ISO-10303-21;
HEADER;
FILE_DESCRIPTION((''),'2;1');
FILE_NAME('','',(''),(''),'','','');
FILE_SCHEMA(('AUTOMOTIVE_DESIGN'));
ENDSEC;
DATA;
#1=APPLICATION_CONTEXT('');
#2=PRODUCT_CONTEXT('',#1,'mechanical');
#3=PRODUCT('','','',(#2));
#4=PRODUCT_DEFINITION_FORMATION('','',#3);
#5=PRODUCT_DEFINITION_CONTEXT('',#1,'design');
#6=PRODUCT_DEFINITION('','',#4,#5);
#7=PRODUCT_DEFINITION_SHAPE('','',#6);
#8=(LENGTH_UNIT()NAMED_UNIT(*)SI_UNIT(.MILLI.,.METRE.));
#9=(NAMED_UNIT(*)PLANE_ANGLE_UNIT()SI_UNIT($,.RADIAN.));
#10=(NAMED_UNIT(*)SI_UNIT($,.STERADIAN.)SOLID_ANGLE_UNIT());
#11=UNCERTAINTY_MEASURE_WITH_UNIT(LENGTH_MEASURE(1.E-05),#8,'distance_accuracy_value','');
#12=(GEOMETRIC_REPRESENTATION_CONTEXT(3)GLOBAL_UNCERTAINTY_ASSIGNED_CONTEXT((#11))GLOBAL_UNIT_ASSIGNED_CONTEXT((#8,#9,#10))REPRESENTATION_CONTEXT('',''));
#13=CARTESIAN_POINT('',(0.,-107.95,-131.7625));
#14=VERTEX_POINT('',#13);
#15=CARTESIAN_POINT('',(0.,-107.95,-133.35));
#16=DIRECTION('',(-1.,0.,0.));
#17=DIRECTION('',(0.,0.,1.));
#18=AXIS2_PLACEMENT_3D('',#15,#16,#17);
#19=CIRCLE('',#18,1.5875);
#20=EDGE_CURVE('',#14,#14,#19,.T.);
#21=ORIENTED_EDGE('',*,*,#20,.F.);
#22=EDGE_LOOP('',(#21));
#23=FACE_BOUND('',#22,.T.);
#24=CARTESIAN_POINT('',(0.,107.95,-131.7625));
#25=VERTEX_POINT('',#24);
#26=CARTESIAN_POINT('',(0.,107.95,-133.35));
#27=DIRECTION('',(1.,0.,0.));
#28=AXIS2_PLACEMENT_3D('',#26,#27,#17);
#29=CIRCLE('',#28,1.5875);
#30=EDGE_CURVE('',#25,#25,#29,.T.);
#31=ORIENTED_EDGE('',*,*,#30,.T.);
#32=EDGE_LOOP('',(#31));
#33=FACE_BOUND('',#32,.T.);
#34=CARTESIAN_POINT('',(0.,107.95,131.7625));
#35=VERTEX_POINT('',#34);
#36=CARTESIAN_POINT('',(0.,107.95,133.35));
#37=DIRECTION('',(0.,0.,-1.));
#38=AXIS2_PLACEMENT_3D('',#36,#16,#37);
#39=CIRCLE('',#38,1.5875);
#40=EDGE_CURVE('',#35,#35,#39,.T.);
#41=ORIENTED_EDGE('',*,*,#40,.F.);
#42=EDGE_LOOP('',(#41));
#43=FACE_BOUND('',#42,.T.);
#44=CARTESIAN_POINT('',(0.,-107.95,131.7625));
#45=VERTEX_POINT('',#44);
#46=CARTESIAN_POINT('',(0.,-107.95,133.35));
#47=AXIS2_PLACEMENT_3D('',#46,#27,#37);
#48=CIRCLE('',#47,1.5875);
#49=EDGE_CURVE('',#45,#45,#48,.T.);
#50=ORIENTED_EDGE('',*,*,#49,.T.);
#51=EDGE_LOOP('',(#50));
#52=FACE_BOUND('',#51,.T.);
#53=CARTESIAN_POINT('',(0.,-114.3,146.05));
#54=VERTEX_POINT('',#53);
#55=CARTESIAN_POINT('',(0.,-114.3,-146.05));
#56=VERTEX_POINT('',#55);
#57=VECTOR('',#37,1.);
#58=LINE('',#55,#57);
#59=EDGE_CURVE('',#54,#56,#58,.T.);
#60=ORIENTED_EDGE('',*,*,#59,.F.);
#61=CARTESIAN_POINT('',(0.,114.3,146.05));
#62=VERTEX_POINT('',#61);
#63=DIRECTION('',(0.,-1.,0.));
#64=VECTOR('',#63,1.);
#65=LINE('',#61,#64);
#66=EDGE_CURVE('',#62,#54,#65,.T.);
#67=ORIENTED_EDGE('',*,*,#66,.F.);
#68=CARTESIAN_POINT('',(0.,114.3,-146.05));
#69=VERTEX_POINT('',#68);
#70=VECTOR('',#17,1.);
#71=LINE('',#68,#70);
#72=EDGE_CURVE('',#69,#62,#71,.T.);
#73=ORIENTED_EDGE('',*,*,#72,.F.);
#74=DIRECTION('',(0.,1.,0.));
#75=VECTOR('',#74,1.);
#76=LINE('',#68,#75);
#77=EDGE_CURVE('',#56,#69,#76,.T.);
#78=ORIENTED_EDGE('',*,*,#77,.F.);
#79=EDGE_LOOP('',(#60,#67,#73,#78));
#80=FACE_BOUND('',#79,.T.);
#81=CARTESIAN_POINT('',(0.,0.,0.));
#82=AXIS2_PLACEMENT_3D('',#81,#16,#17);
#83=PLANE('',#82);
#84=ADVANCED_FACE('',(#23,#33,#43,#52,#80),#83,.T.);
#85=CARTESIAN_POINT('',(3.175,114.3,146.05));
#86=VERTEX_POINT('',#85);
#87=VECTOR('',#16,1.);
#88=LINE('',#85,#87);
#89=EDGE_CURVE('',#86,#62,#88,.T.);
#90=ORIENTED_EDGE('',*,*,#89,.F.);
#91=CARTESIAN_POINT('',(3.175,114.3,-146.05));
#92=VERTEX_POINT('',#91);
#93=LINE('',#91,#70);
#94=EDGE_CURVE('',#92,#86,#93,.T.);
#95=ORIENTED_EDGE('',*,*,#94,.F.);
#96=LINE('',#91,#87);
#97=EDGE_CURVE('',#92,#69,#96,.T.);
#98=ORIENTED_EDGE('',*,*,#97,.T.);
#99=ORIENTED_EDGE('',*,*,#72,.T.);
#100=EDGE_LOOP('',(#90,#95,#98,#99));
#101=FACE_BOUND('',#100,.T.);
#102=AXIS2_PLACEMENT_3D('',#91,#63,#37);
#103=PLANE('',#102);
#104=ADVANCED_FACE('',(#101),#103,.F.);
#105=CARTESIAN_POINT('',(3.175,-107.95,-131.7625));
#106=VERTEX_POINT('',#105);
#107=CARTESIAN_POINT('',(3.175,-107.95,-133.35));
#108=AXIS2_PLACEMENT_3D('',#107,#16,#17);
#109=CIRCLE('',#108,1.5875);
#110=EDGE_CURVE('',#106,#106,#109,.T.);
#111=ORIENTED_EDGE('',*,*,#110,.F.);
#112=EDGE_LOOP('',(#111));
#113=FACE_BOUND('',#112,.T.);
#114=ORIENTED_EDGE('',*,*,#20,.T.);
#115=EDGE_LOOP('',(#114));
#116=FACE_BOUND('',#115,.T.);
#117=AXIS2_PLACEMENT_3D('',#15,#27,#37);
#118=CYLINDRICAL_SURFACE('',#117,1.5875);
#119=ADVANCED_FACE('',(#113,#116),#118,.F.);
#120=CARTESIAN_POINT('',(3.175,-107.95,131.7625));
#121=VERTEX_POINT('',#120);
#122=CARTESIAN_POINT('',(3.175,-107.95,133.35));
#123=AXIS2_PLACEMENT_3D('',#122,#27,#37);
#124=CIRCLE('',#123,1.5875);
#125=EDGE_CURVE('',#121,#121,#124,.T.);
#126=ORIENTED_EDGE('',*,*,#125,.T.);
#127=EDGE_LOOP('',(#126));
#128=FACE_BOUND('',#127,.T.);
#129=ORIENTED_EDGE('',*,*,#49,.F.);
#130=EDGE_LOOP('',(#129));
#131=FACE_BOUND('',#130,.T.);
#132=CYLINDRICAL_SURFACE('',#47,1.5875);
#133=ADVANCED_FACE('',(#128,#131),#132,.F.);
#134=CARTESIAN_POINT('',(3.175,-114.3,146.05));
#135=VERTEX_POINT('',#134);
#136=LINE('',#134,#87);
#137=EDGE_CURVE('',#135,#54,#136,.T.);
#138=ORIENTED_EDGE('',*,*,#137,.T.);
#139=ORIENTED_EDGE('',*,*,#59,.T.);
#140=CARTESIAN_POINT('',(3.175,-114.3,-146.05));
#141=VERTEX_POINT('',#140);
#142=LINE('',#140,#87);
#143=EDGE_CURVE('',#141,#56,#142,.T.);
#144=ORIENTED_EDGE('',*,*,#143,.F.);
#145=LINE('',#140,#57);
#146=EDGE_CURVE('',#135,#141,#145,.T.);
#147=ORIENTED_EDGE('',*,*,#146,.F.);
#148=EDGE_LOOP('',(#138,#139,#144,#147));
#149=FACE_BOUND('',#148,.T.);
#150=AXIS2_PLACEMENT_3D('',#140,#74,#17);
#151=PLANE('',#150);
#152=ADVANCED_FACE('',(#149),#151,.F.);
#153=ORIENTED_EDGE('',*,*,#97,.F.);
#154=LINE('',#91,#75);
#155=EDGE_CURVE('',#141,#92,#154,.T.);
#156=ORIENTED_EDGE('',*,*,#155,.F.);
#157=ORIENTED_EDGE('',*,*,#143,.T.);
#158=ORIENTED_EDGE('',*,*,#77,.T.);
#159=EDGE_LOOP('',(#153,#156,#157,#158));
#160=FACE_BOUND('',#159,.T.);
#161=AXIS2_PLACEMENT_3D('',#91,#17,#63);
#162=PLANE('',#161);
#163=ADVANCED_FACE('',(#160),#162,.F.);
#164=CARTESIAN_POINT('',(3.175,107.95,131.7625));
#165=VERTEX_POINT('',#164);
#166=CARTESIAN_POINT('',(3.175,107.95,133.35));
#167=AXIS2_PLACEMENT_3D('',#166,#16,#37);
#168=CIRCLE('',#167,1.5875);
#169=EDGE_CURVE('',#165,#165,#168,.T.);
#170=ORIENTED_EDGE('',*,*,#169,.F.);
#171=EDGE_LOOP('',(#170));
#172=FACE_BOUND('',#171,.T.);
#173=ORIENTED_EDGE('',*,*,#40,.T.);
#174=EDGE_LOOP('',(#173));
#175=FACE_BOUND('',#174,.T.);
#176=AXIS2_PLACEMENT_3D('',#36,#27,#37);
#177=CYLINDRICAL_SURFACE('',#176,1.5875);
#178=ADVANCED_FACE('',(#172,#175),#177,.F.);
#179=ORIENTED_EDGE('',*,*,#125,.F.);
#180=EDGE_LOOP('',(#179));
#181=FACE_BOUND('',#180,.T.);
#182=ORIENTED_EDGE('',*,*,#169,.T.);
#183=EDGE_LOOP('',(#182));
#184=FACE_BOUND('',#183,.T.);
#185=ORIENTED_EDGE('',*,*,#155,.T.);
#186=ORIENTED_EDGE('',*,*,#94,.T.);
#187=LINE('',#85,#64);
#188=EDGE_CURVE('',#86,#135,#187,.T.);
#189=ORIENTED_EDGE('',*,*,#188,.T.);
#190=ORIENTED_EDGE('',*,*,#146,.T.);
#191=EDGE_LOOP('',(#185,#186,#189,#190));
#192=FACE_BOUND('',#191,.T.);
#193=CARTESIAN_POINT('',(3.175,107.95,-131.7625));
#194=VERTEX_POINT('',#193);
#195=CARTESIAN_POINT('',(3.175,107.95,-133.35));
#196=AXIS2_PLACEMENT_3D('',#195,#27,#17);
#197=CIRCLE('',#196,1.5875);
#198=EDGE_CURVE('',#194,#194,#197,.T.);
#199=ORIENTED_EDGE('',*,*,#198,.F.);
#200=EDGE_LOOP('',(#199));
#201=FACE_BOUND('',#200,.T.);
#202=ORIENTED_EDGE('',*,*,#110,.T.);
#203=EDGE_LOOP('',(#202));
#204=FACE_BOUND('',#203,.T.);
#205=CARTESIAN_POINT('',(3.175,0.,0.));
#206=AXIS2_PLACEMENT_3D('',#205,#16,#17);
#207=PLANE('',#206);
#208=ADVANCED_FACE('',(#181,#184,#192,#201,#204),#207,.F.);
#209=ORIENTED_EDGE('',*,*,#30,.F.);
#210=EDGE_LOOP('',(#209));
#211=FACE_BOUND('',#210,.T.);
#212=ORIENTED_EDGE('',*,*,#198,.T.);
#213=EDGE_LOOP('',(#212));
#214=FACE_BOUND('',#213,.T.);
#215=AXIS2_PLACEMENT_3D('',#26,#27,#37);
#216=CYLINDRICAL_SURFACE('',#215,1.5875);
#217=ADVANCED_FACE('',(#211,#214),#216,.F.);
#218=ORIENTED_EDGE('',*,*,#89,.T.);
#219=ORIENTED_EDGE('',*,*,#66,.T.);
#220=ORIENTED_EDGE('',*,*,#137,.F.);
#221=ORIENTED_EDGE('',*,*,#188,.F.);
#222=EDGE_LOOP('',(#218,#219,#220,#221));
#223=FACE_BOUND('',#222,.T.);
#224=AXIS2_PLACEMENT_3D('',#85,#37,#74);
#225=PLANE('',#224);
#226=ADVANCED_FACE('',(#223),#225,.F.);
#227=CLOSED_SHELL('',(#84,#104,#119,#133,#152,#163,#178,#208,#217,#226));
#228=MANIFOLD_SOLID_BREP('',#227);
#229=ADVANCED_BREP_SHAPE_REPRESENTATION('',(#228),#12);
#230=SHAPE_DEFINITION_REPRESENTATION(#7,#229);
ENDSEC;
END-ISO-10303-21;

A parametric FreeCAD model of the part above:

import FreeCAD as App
import Part
import Sketcher

V = App.Vector
Q = App.Units.Quantity

doc = App.newDocument("Part")
body = doc.addObject("PartDesign::Body", "Body")

# Sketch on YZ plane
sketch1 = doc.addObject("Sketcher::SketchObject", "Sketch")
body.addObject(sketch1)
sketch1.AttachmentSupport = (doc.YZ_Plane, [""])
sketch1.MapMode = "FlatFace"
sketch1.addGeometry(Part.LineSegment(V(114.3, 146.05, 0), V(-114.3, 146.05, 0)), False)
sketch1.addGeometry(Part.LineSegment(V(-114.3, 146.05, 0), V(-114.3, -146.05, 0)), False)
sketch1.addGeometry(Part.LineSegment(V(-114.3, -146.05, 0), V(114.3, -146.05, 0)), False)
sketch1.addGeometry(Part.LineSegment(V(114.3, -146.05, 0), V(114.3, 146.05, 0)), False)
sketch1.addConstraint(Sketcher.Constraint("Coincident", 0, 2, 1, 1))
sketch1.addConstraint(Sketcher.Constraint("Coincident", 1, 2, 2, 1))
sketch1.addConstraint(Sketcher.Constraint("Coincident", 2, 2, 3, 1))
sketch1.addConstraint(Sketcher.Constraint("Coincident", 3, 2, 0, 1))
sketch1.addConstraint(Sketcher.Constraint("Horizontal", 0))
sketch1.addConstraint(Sketcher.Constraint("Vertical", 1))
sketch1.addConstraint(Sketcher.Constraint("Horizontal", 2))
sketch1.addConstraint(Sketcher.Constraint("Vertical", 3))
sketch1.addConstraint(Sketcher.Constraint("Symmetric", 0, 2, 2, 2, -1, 1))
sketch1.addConstraint(Sketcher.Constraint("DistanceX", 0, 2, 0, 1, Q("9 in")))
sketch1.addConstraint(Sketcher.Constraint("DistanceY", 1, 2, 1, 1, Q("11.5 in")))
pad1 = doc.addObject("PartDesign::Pad", "Pad")
body.addObject(pad1)
pad1.Profile = sketch1
pad1.Length = Q("0.125 in")

# Sketch on YZ plane
sketch2 = doc.addObject("Sketcher::SketchObject", "Sketch001")
body.addObject(sketch2)
sketch2.AttachmentSupport = (doc.YZ_Plane, [""])
sketch2.MapMode = "FlatFace"
sketch2.AttachmentOffset = App.Placement(V(0, 0, 0.125 * 25.4), App.Rotation())
sketch2.addGeometry(Part.Circle(V(-107.95, 133.35, 0), V(0, 0, 1), 1.5875), False)
sketch2.addConstraint(Sketcher.Constraint("Diameter", 0, Q("0.125 in")))
sketch2.addConstraint(Sketcher.Constraint("DistanceX", 0, 3, -1, 1, Q("4.25 in")))
sketch2.addConstraint(Sketcher.Constraint("DistanceY", -1, 1, 0, 3, Q("5.25 in")))
pocket1 = doc.addObject("PartDesign::Pocket", "Pocket")
body.addObject(pocket1)
pocket1.Profile = sketch2
pocket1.Type = "ThroughAll"
doc.recompute()

mirrored = doc.addObject("PartDesign::Mirrored", "Mirrored")
body.addObject(mirrored)
mirrored.Originals = [pocket1]
mirrored.MirrorPlane = (doc.XZ_Plane, [""])
body.Tip = mirrored
doc.recompute()

mirrored2 = doc.addObject("PartDesign::Mirrored", "Mirrored001")
body.addObject(mirrored2)
mirrored2.Originals = [pocket1]
mirrored2.MirrorPlane = (doc.XY_Plane, [""])
body.Tip = mirrored2

# Sketch on YZ plane
sketch3 = doc.addObject("Sketcher::SketchObject", "Sketch002")
body.addObject(sketch3)
sketch3.AttachmentSupport = (doc.YZ_Plane, [""])
sketch3.MapMode = "FlatFace"
sketch3.AttachmentOffset = App.Placement(V(0, 0, 0.125 * 25.4), App.Rotation())
sketch3.addGeometry(Part.Circle(V(107.95, -133.35, 0), V(0, 0, 1), 1.5875), False)
sketch3.addConstraint(Sketcher.Constraint("Diameter", 0, Q("0.125 in")))
sketch3.addConstraint(Sketcher.Constraint("DistanceX", -1, 1, 0, 3, Q("4.25 in")))
sketch3.addConstraint(Sketcher.Constraint("DistanceY", 0, 3, -1, 1, Q("5.25 in")))
pocket2 = doc.addObject("PartDesign::Pocket", "Pocket001")
body.addObject(pocket2)
pocket2.Profile = sketch3
pocket2.Type = "ThroughAll"

doc.recompute()
